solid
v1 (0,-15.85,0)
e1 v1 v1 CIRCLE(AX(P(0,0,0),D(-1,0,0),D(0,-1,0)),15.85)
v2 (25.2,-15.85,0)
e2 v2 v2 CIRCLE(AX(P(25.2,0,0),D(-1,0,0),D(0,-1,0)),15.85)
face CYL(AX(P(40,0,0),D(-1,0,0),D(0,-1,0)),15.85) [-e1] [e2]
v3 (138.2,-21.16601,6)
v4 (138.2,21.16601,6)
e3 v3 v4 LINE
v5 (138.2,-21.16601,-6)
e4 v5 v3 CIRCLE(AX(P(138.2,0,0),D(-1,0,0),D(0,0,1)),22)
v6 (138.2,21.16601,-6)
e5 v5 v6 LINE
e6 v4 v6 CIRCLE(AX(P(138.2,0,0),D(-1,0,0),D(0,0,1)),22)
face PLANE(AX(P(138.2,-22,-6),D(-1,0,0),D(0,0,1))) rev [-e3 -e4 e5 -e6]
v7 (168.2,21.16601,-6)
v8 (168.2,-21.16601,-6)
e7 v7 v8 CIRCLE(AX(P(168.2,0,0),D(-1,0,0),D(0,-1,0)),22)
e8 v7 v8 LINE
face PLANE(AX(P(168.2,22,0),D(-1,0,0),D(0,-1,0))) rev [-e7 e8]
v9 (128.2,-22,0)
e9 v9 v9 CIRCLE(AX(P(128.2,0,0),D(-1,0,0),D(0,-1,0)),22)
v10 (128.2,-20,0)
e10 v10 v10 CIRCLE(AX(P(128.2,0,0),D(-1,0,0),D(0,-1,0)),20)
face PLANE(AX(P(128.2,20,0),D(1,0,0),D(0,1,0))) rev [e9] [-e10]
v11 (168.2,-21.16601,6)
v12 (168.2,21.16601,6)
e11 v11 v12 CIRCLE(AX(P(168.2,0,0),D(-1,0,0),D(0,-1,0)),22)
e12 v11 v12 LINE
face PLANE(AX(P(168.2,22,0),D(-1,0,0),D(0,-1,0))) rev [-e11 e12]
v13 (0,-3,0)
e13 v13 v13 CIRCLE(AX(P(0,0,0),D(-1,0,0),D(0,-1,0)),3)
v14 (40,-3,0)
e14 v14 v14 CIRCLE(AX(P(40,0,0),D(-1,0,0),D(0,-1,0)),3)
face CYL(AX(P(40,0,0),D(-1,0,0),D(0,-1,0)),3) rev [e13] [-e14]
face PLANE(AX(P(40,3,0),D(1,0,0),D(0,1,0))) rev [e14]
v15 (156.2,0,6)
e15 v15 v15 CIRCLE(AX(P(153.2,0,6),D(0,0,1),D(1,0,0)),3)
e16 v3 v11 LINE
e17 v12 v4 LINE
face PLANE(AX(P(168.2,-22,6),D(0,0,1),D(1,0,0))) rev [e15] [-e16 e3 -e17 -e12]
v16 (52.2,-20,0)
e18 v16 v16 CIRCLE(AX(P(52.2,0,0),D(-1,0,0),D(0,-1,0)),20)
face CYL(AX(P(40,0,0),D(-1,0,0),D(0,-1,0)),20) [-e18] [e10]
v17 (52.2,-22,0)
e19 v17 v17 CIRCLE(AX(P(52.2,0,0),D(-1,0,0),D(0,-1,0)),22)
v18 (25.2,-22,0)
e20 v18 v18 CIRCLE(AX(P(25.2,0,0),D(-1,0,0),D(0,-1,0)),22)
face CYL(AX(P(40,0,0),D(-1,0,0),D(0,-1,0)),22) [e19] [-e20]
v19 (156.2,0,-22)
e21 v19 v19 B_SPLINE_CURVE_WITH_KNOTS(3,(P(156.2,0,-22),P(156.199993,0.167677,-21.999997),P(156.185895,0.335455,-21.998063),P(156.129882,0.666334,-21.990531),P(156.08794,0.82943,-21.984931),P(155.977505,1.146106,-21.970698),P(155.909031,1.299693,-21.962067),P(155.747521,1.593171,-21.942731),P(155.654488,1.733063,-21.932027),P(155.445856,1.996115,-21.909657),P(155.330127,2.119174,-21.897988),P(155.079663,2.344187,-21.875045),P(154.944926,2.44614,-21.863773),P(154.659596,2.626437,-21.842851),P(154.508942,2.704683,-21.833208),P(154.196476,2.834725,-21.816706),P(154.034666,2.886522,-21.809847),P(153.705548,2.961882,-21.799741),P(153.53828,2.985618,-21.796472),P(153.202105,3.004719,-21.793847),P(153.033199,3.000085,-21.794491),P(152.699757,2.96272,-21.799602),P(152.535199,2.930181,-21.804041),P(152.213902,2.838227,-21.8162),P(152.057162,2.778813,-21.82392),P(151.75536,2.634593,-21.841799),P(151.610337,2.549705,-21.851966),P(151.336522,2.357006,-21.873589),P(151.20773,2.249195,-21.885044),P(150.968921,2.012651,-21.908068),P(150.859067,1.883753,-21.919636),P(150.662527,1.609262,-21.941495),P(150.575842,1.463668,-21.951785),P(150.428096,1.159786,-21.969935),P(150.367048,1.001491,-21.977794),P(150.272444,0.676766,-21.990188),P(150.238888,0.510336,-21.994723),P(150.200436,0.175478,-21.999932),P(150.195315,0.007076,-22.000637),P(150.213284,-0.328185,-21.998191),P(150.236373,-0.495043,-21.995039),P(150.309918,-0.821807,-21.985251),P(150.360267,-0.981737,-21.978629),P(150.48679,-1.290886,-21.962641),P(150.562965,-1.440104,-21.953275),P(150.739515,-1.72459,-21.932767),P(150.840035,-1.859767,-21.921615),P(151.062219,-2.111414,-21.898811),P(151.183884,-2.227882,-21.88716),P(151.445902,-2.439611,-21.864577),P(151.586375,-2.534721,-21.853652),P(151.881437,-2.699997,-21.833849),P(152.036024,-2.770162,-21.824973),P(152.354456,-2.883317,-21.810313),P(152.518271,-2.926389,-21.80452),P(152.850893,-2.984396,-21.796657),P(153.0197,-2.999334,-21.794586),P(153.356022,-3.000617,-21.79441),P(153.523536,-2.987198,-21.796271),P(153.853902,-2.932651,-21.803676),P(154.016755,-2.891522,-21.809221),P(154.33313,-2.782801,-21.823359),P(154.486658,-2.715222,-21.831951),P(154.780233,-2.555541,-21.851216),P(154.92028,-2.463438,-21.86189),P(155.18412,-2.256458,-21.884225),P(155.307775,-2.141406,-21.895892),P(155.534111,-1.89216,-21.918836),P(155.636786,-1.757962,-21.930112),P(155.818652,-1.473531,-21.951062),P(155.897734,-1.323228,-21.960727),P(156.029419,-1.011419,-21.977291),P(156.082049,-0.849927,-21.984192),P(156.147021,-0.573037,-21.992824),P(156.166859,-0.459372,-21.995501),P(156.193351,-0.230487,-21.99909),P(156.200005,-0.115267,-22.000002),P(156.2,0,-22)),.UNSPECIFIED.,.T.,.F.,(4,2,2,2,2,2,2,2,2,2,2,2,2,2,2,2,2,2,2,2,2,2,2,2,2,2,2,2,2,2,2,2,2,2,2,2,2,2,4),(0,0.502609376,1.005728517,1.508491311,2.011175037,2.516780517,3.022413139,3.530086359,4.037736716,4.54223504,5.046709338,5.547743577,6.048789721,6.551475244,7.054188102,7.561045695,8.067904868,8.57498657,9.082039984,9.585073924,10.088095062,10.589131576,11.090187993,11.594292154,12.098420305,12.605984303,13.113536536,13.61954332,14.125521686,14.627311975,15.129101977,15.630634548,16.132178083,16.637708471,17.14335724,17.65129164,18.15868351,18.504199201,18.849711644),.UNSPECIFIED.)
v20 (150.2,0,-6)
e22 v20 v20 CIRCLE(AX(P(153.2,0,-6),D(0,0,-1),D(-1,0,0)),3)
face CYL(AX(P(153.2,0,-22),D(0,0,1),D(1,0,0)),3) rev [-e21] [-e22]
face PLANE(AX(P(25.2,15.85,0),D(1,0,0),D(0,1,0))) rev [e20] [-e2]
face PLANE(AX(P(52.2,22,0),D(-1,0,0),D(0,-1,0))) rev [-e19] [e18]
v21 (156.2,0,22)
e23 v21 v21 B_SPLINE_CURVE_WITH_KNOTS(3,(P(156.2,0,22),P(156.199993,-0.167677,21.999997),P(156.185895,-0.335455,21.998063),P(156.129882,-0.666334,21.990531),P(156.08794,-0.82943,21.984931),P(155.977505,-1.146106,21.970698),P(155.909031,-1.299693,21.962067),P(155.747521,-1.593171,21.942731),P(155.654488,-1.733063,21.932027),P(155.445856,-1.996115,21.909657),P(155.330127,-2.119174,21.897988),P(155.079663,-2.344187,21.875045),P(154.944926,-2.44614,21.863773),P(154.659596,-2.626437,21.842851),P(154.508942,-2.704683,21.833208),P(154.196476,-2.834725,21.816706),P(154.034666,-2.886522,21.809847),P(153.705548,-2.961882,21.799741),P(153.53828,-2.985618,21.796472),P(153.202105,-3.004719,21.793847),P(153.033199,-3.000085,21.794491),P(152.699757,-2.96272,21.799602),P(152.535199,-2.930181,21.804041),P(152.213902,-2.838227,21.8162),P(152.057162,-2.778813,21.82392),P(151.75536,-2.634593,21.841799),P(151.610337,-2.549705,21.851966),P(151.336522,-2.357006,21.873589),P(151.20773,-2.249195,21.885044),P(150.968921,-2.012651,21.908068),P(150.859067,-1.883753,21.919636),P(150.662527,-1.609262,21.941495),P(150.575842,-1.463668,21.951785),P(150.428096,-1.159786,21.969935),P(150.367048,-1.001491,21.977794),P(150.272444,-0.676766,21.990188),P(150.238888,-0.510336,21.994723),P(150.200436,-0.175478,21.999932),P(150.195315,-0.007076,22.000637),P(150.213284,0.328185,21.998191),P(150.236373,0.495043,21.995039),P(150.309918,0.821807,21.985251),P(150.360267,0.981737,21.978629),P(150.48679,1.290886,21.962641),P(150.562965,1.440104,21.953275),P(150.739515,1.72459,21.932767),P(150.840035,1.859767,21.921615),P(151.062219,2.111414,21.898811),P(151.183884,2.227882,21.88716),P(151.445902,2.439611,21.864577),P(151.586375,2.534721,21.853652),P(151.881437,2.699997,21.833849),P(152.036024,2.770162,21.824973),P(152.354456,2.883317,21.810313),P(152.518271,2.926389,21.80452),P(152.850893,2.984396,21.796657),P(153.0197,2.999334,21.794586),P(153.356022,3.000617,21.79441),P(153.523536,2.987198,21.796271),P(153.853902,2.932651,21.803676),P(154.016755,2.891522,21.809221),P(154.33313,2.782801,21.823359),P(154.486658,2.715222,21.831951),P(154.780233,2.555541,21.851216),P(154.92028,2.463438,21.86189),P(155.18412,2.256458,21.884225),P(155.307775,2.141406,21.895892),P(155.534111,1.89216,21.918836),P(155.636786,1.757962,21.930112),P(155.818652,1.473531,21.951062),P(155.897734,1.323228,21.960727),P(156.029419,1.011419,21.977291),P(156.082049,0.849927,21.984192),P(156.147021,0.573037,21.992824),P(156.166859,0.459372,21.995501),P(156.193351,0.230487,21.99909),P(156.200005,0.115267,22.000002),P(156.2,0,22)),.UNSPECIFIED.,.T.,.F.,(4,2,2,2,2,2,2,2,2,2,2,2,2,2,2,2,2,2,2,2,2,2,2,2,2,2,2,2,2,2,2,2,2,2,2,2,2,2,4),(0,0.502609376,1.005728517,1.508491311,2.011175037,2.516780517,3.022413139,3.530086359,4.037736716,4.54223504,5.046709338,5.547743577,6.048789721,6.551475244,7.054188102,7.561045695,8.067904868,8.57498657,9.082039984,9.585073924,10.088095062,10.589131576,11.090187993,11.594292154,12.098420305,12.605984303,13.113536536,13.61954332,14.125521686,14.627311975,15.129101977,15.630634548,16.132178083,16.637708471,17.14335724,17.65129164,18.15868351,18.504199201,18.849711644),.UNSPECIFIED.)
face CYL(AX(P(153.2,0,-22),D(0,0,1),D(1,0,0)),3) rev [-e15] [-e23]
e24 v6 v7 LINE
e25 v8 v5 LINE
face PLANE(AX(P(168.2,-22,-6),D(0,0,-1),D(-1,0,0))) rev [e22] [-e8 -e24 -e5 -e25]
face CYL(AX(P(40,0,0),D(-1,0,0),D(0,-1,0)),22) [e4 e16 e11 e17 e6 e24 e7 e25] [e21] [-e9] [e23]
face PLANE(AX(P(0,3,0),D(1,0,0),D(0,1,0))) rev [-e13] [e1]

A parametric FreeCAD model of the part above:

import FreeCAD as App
import Part
import Sketcher
Q = App.Units.Quantity

doc = App.newDocument("Part")
params = doc.addObject("Spreadsheet::Sheet", "Params")
for row, (alias, value) in enumerate([
    ("sketch1_width", "40 mm"),
    ("sketch1_width2", "76 mm"),
    ("sketch1_width3", "27 mm"),
    ("sketch1_height", "3 mm"),
    ("sketch1_height2", "22 mm"),
    ("revolution_angle", "360 deg"),
    ("sketch2_width", "30 mm"),
    ("sketch2_height", "12 mm"),
    ("sketch3_diameter", "6 mm"),
], start=1):
    params.set(f"A{row}", alias)
    params.set(f"B{row}", "=" + value)
    params.setAlias(f"B{row}", alias)

body = doc.addObject("PartDesign::Body", "Body")

sketch1 = body.newObject("Sketcher::SketchObject", "Sketch")
sketch1.AttachmentSupport = (doc.getObject("XY_Plane"), [""])
sketch1.MapMode = "FlatFace"
sketch1.addGeometry([
    Part.LineSegment(App.Vector(0, 3, 0), App.Vector(40, 3, 0)),
    Part.LineSegment(App.Vector(40, 3, 0), App.Vector(40, 0, 0)),
    Part.LineSegment(App.Vector(40, 0, 0), App.Vector(168.2, 0, 0)),
    Part.LineSegment(App.Vector(168.2, 0, 0), App.Vector(168.2, 22, 0)),
    Part.LineSegment(App.Vector(168.2, 22, 0), App.Vector(128.2, 22, 0)),
    Part.LineSegment(App.Vector(128.2, 22, 0), App.Vector(128.2, 20, 0)),
    Part.LineSegment(App.Vector(128.2, 20, 0), App.Vector(52.2, 20, 0)),
    Part.LineSegment(App.Vector(52.2, 20, 0), App.Vector(52.2, 22, 0)),
    Part.LineSegment(App.Vector(52.2, 22, 0), App.Vector(25.2, 22, 0)),
    Part.LineSegment(App.Vector(25.2, 22, 0), App.Vector(25.2, 15.8, 0)),
    Part.LineSegment(App.Vector(25.2, 15.8, 0), App.Vector(0, 15.8, 0)),
    Part.LineSegment(App.Vector(0, 15.8, 0), App.Vector(0, 3, 0)),
], False)
sketch1.addConstraint([
    Sketcher.Constraint("Coincident", 0, 2, 1, 1),
    Sketcher.Constraint("Coincident", 1, 2, 2, 1),
    Sketcher.Constraint("Coincident", 2, 2, 3, 1),
    Sketcher.Constraint("Coincident", 3, 2, 4, 1),
    Sketcher.Constraint("Coincident", 4, 2, 5, 1),
    Sketcher.Constraint("Coincident", 5, 2, 6, 1),
    Sketcher.Constraint("Coincident", 6, 2, 7, 1),
    Sketcher.Constraint("Coincident", 7, 2, 8, 1),
    Sketcher.Constraint("Coincident", 8, 2, 9, 1),
    Sketcher.Constraint("Coincident", 9, 2, 10, 1),
    Sketcher.Constraint("Coincident", 10, 2, 11, 1),
    Sketcher.Constraint("Coincident", 11, 2, 0, 1),
    Sketcher.Constraint("Horizontal", 0),
    Sketcher.Constraint("Vertical", 1),
    Sketcher.Constraint("Horizontal", 2),
    Sketcher.Constraint("Vertical", 3),
    Sketcher.Constraint("Horizontal", 4),
    Sketcher.Constraint("Vertical", 5),
    Sketcher.Constraint("Horizontal", 6),
    Sketcher.Constraint("Vertical", 7),
    Sketcher.Constraint("Horizontal", 8),
    Sketcher.Constraint("Vertical", 9),
    Sketcher.Constraint("Horizontal", 10),
    Sketcher.Constraint("Vertical", 11),
    Sketcher.Constraint("PointOnObject", 1, 2, -1),
    Sketcher.Constraint("PointOnObject", 10, 2, -2),
    Sketcher.Constraint("Horizontal", 4, 2, 7, 2),
    Sketcher.Constraint("Equal", 0, 4),
    Sketcher.Constraint("DistanceX", 0, 1, 0, 2, Q("40 mm")),
    Sketcher.Constraint("DistanceX", 6, 2, 6, 1, Q("76 mm")),
    Sketcher.Constraint("DistanceX", 8, 2, 8, 1, Q("27 mm")),
    Sketcher.Constraint("DistanceY", 1, 2, 1, 1, Q("3 mm")),
    Sketcher.Constraint("DistanceY", 3, 1, 3, 2, Q("22 mm")),
    Sketcher.Constraint("DistanceY", 5, 2, 5, 1, Q("2 mm")),
    Sketcher.Constraint("DistanceX", 2, 1, 2, 2, Q("128.2 mm")),
    Sketcher.Constraint("DistanceY", 9, 2, 9, 1, Q("6.15 mm")),
])
sketch1.setExpression("Constraints[28]", "Params.sketch1_width")
sketch1.setExpression("Constraints[29]", "Params.sketch1_width2")
sketch1.setExpression("Constraints[30]", "Params.sketch1_width3")
sketch1.setExpression("Constraints[31]", "Params.sketch1_height")
sketch1.setExpression("Constraints[32]", "Params.sketch1_height2")
revolution = body.newObject("PartDesign::Revolution", "Revolution")
revolution.Profile = sketch1
revolution.ReferenceAxis = (sketch1, ["H_Axis"])
revolution.setExpression("Angle", "Params.revolution_angle")

sketch2 = body.newObject("Sketcher::SketchObject", "Sketch001")
sketch2.AttachmentSupport = (doc.getObject("XZ_Plane"), [""])
sketch2.MapMode = "FlatFace"
sketch2.addGeometry([
    Part.LineSegment(App.Vector(138, -6, 0), App.Vector(138, 6, 0)),
    Part.LineSegment(App.Vector(138, 6, 0), App.Vector(168, 6, 0)),
    Part.LineSegment(App.Vector(168, 6, 0), App.Vector(168, -6, 0)),
    Part.LineSegment(App.Vector(168, -6, 0), App.Vector(138, -6, 0)),
], False)
sketch2.addConstraint([
    Sketcher.Constraint("Coincident", 0, 2, 1, 1),
    Sketcher.Constraint("Coincident", 1, 2, 2, 1),
    Sketcher.Constraint("Coincident", 2, 2, 3, 1),
    Sketcher.Constraint("Coincident", 3, 2, 0, 1),
    Sketcher.Constraint("Vertical", 0),
    Sketcher.Constraint("Horizontal", 1),
    Sketcher.Constraint("Vertical", 2),
    Sketcher.Constraint("Horizontal", 3),
    Sketcher.Constraint("DistanceX", 1, 1, 1, 2, Q("30 mm")),
    Sketcher.Constraint("DistanceY", 0, 1, 0, 2, Q("12 mm")),
    Sketcher.Constraint("DistanceY", -1, 1, 0, 2, Q("6 mm")),
    Sketcher.Constraint("DistanceX", -1, 1, 0, 2, Q("138.2 mm")),
])
sketch2.setExpression("Constraints[8]", "Params.sketch2_width")
sketch2.setExpression("Constraints[9]", "Params.sketch2_height")
pocket1 = body.newObject("PartDesign::Pocket", "Pocket")
pocket1.Profile = sketch2
pocket1.Type = "ThroughAll"
pocket1.Midplane = True

sketch3 = body.newObject("Sketcher::SketchObject", "Sketch002")
sketch3.AttachmentSupport = (doc.getObject("XY_Plane"), [""])
sketch3.MapMode = "FlatFace"
sketch3.AttachmentOffset = App.Placement(App.Vector(0, 0, -6), App.Rotation())
sketch3.addGeometry(Part.Circle(App.Vector(153.2, 0, 0), App.Vector(0, 0, 1), 3), False)
sketch3.addConstraint([
    Sketcher.Constraint("PointOnObject", 0, 3, -1),
    Sketcher.Constraint("Diameter", 0, Q("6 mm")),
    Sketcher.Constraint("DistanceX", -1, 1, 0, 3, Q("153.2 mm")),
])
sketch3.setExpression("Constraints[1]", "Params.sketch3_diameter")
pocket2 = body.newObject("PartDesign::Pocket", "Pocket001")
pocket2.Profile = sketch3
pocket2.Type = "ThroughAll"
pocket2.Midplane = True

doc.recompute()
